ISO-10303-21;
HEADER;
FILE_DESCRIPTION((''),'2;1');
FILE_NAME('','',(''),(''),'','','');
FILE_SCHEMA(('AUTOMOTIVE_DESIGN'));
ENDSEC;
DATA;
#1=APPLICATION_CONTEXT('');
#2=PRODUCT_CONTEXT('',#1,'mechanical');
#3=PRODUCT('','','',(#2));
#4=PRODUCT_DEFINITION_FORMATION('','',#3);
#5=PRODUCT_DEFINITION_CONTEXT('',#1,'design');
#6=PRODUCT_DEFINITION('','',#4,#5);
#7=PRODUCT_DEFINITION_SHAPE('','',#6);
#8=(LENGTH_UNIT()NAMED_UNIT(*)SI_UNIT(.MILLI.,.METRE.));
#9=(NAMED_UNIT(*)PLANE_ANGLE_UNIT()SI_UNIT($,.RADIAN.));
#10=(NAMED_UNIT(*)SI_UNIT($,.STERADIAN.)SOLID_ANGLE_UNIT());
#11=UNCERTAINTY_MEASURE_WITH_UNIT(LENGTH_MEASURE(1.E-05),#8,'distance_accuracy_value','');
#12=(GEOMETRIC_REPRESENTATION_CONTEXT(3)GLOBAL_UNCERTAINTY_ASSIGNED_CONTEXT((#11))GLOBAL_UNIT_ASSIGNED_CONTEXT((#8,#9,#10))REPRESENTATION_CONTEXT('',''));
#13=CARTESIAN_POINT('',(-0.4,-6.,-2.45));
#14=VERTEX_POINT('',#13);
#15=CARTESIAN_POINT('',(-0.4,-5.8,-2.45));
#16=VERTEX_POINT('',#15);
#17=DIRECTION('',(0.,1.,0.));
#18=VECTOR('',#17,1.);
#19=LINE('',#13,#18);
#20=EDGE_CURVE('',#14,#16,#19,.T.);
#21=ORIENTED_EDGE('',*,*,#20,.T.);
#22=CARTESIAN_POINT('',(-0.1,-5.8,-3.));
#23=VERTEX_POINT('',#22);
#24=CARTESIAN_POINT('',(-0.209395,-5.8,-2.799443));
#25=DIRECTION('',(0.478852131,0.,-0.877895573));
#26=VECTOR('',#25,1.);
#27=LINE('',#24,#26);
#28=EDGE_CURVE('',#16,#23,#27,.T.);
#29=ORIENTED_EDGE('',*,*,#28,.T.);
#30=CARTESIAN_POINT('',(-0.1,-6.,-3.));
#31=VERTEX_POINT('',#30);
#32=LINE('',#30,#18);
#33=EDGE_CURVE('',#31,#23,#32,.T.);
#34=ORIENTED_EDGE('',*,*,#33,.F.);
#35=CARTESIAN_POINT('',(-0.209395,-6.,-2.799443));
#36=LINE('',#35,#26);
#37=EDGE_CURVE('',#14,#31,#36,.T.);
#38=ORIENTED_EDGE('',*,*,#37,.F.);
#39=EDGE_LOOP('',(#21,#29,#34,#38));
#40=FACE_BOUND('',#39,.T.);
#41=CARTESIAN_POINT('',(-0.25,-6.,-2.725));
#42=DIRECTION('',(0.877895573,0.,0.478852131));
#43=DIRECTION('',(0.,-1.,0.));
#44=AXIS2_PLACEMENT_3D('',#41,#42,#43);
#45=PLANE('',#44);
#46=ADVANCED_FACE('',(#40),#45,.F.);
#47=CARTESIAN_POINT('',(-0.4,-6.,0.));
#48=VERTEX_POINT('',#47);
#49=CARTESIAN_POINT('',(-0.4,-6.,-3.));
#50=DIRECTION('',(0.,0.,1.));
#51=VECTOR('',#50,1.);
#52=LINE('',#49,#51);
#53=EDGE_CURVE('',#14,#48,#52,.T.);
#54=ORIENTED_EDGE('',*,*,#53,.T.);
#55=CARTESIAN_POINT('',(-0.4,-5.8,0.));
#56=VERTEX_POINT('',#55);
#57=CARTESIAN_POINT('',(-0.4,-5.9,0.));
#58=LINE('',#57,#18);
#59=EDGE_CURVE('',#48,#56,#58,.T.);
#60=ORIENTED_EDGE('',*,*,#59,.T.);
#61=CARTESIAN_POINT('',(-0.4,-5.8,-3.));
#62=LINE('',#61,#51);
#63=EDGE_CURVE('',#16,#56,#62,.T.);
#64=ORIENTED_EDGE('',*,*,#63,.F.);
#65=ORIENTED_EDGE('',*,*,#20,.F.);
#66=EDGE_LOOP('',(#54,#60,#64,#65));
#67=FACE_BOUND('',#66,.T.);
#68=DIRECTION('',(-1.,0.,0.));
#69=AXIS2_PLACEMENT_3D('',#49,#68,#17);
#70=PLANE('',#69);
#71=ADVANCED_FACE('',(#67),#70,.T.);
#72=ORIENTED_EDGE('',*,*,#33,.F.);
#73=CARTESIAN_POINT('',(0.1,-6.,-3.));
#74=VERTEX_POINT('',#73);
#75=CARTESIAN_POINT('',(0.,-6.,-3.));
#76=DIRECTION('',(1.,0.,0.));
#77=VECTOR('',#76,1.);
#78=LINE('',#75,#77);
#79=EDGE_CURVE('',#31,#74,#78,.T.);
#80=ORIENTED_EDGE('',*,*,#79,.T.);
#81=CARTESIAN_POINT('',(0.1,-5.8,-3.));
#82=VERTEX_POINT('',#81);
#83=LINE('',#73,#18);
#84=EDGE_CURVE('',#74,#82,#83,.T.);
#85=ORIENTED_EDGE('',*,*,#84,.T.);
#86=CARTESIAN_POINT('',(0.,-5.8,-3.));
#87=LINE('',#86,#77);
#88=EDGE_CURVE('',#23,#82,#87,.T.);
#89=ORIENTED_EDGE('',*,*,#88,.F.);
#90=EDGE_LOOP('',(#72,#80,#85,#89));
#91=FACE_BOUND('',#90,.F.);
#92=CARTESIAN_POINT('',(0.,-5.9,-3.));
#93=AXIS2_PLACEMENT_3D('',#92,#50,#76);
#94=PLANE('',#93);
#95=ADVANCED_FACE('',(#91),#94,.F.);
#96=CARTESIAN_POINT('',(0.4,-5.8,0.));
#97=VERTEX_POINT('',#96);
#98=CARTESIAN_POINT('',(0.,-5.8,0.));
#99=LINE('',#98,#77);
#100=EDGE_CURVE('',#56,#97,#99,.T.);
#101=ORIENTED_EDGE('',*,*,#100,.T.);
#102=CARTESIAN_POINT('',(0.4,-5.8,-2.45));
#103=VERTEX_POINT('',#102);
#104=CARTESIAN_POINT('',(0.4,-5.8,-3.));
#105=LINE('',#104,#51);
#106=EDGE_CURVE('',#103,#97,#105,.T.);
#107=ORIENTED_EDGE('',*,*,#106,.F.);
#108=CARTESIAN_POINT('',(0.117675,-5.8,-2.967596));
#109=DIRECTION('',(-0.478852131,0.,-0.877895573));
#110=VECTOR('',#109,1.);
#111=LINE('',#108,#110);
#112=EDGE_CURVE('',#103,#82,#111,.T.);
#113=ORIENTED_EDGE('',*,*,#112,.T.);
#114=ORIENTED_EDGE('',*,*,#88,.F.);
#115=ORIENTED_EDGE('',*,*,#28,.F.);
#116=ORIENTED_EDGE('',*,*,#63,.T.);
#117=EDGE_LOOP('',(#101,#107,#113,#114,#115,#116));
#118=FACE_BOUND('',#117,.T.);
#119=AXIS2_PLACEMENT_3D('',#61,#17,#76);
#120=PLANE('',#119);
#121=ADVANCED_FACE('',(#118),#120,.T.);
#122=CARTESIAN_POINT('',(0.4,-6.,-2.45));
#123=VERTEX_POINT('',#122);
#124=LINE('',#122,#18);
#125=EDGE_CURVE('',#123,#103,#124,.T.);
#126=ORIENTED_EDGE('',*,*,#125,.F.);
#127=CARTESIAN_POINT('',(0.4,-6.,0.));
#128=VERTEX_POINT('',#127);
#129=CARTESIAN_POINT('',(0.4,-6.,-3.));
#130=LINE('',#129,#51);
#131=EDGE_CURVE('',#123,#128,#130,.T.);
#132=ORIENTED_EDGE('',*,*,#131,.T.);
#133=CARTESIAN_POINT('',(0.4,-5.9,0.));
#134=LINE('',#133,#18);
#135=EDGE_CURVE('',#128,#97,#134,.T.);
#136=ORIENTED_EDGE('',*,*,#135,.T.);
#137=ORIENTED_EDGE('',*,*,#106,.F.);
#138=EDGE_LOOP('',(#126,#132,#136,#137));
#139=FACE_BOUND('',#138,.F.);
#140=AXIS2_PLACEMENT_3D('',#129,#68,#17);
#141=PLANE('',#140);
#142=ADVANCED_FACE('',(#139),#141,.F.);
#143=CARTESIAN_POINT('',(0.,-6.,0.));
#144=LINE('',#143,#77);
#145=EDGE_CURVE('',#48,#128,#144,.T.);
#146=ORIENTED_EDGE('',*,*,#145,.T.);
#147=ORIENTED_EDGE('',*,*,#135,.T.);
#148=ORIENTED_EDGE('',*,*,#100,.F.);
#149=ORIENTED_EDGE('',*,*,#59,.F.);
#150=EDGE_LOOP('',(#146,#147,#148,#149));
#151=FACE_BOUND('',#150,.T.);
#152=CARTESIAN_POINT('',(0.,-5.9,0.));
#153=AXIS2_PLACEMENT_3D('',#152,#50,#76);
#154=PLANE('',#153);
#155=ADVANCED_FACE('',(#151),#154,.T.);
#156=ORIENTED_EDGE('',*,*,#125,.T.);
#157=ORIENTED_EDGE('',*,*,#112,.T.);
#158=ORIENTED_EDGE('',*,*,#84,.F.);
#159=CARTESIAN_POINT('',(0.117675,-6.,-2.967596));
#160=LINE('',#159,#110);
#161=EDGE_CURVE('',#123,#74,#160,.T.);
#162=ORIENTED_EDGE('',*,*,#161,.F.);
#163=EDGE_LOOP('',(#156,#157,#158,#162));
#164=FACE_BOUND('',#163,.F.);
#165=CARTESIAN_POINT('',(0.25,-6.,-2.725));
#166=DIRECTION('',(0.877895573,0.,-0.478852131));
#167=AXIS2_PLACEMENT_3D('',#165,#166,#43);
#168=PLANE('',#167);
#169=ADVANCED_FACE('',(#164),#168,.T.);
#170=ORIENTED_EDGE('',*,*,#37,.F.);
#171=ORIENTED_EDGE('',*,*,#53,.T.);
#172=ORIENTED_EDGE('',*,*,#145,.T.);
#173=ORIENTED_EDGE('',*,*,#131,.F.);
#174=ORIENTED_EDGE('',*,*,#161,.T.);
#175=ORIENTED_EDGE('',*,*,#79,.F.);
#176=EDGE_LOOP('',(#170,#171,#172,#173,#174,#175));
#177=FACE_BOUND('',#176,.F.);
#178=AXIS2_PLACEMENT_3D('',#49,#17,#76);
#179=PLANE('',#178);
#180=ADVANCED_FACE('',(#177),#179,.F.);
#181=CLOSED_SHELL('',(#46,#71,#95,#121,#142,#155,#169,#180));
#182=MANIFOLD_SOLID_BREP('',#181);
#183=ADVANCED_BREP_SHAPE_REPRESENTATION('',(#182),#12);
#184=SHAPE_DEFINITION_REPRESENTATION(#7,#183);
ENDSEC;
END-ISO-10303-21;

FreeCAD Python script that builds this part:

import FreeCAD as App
import Part
import Sketcher
from FreeCAD import Vector


def edges_at(feature, points):
    """Names of the edges that pass closest to the given points."""
    edges = feature.Shape.Edges
    near = lambda p: min(range(len(edges)), key=lambda i: edges[i].distToShape(Part.Vertex(*p))[0])
    return sorted({f"Edge{near(p) + 1}" for p in points})


def add_polygon(sketch, points):
    """Adds a closed chain of lines whose ends are joined by coincident constraints."""
    first, n = sketch.GeometryCount, len(points)
    for a, b in zip(points, points[1:] + points[:1]):
        sketch.addGeometry(Part.LineSegment(App.Vector(*a, 0), App.Vector(*b, 0)), False)
    for i in range(n):
        sketch.addConstraint(Sketcher.Constraint("Coincident", first + i, 2, first + (i + 1) % n, 1))

doc = App.newDocument("Part")
params = doc.addObject("Spreadsheet::Sheet", "Params")
for row, (alias, value) in enumerate([
    ("sketch1_width", "0.8 mm"),
    ("sketch1_height", "0.2 mm"),
    ("pad1_length", "3 mm"),
    ("chamfer_size", "0.55 mm"),
    ("chamfer_size2", "0.3 mm"),
    ("chamfer2_size", "0.55 mm"),
    ("chamfer2_size2", "0.3 mm"),
], start=1):
    params.set(f"A{row}", alias)
    params.set(f"B{row}", "=" + value)
    params.setAlias(f"B{row}", alias)

body = doc.addObject("PartDesign::Body", "Body")

# Sketch on XY plane
sketch1 = body.newObject("Sketcher::SketchObject", "Sketch")
sketch1.AttachmentSupport = (doc.getObject("XY_Plane"), [""])
sketch1.MapMode = "FlatFace"
sketch1.AttachmentOffset = App.Placement(Vector(0, 0, -3), App.Rotation())
add_polygon(sketch1, [(-0.4, -5.8), (-0.4, -6), (0.4, -6), (0.4, -5.8)])  # lines 0-3
sketch1.addConstraint(Sketcher.Constraint("Vertical", 0))
sketch1.addConstraint(Sketcher.Constraint("Horizontal", 1))
sketch1.addConstraint(Sketcher.Constraint("Vertical", 2))
sketch1.addConstraint(Sketcher.Constraint("Horizontal", 3))
sketch1.addConstraint(Sketcher.Constraint("DistanceX", 1, 1, 1, 2, 0.8))
sketch1.addConstraint(Sketcher.Constraint("DistanceY", 0, 2, 0, 1, 0.2))
sketch1.addConstraint(Sketcher.Constraint("DistanceY", 0, 2, -1, 1, 6.0))
sketch1.addConstraint(Sketcher.Constraint("DistanceX", 0, 2, -1, 1, 0.4))
sketch1.setExpression("Constraints[8]", "Params.sketch1_width")
sketch1.setExpression("Constraints[9]", "Params.sketch1_height")
pad1 = body.newObject("PartDesign::Pad", "Pad")
pad1.Profile = sketch1
pad1.setExpression("Length", "Params.pad1_length")
doc.recompute()

chamfer = body.newObject("PartDesign::Chamfer", "Chamfer")
chamfer.Base = (pad1, edges_at(pad1, [(0.4, -5.9, -3)]))
chamfer.ChamferType = "Two distances"
chamfer.setExpression("Size", "Params.chamfer_size")
chamfer.setExpression("Size2", "Params.chamfer_size2")
doc.recompute()

chamfer2 = body.newObject("PartDesign::Chamfer", "Chamfer001")
chamfer2.Base = (chamfer, edges_at(chamfer, [(-0.4, -5.9, -3)]))
chamfer2.ChamferType = "Two distances"
chamfer2.setExpression("Size", "Params.chamfer2_size")
chamfer2.setExpression("Size2", "Params.chamfer2_size2")
chamfer2.FlipDirection = True

doc.recompute()
